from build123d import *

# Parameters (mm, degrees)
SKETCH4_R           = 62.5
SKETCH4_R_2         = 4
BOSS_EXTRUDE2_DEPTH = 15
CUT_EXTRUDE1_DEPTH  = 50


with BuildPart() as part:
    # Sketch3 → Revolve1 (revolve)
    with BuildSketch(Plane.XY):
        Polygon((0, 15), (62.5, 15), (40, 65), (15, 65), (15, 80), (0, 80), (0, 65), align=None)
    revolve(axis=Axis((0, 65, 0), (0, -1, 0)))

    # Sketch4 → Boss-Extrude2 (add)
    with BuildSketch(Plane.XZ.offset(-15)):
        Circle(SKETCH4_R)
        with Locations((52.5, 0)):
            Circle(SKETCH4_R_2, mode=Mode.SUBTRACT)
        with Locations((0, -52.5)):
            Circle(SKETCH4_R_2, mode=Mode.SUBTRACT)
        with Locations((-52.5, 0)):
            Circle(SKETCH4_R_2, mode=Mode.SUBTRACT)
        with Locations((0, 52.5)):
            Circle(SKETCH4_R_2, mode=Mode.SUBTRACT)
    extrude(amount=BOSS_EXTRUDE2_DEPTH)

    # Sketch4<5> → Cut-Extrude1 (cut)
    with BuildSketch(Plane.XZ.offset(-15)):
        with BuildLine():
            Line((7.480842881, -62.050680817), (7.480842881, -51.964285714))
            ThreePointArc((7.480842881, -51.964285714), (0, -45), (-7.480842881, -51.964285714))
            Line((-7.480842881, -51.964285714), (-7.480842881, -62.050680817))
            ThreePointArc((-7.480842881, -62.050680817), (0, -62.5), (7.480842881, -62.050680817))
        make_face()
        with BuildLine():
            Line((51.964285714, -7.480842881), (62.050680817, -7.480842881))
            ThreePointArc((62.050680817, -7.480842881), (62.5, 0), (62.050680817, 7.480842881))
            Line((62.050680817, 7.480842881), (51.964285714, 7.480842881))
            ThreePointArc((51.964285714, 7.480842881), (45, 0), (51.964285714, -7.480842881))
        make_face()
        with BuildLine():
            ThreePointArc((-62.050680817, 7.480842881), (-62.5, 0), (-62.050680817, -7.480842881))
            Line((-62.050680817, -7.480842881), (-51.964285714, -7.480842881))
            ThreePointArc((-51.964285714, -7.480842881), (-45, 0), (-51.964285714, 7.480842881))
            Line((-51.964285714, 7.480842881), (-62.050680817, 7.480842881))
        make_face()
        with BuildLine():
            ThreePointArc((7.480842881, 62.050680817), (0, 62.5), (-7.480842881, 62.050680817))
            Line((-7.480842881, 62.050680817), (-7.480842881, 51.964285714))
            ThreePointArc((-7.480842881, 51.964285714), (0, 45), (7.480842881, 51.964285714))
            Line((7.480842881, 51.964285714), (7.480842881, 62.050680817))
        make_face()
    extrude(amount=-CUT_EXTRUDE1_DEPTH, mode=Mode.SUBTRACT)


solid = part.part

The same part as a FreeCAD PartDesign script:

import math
import FreeCAD as App
import Part
import Sketcher
Q = App.Units.Quantity

doc = App.newDocument("Part")
body = doc.addObject("PartDesign::Body", "Body")

# Sketch on XY plane
sketch1 = doc.addObject("Sketcher::SketchObject", "Sketch")
body.addObject(sketch1)
sketch1.AttachmentSupport = (doc.XY_Plane, [""])
sketch1.MapMode = "FlatFace"
sketch1.addGeometry(Part.LineSegment(App.Vector(0, 15, 0), App.Vector(62, 15, 0)), False)
sketch1.addGeometry(Part.LineSegment(App.Vector(62, 15, 0), App.Vector(40, 65, 0)), False)
sketch1.addGeometry(Part.LineSegment(App.Vector(40, 65, 0), App.Vector(15, 65, 0)), False)
sketch1.addGeometry(Part.LineSegment(App.Vector(15, 65, 0), App.Vector(15, 80, 0)), False)
sketch1.addGeometry(Part.LineSegment(App.Vector(15, 80, 0), App.Vector(0, 80, 0)), False)
sketch1.addGeometry(Part.LineSegment(App.Vector(0, 80, 0), App.Vector(0, 15, 0)), False)
sketch1.addConstraint(Sketcher.Constraint("Coincident", 0, 2, 1, 1))
sketch1.addConstraint(Sketcher.Constraint("Coincident", 1, 2, 2, 1))
sketch1.addConstraint(Sketcher.Constraint("Coincident", 2, 2, 3, 1))
sketch1.addConstraint(Sketcher.Constraint("Coincident", 3, 2, 4, 1))
sketch1.addConstraint(Sketcher.Constraint("Coincident", 4, 2, 5, 1))
sketch1.addConstraint(Sketcher.Constraint("Coincident", 5, 2, 0, 1))
sketch1.addConstraint(Sketcher.Constraint("Horizontal", 0))
sketch1.addConstraint(Sketcher.Constraint("Horizontal", 2))
sketch1.addConstraint(Sketcher.Constraint("Vertical", 3))
sketch1.addConstraint(Sketcher.Constraint("Horizontal", 4))
sketch1.addConstraint(Sketcher.Constraint("Vertical", 5))
sketch1.addConstraint(Sketcher.Constraint("PointOnObject", 4, 2, -2))
sketch1.addConstraint(Sketcher.Constraint("Equal", 4, 3))
sketch1.addConstraint(Sketcher.Constraint("DistanceX", 2, 2, 2, 1, Q("25 mm")))
sketch1.addConstraint(Sketcher.Constraint("DistanceX", 4, 2, 4, 1, Q("15 mm")))
sketch1.addConstraint(Sketcher.Constraint("DistanceY", 5, 2, 5, 1, Q("65 mm")))
sketch1.addConstraint(Sketcher.Constraint("DistanceX", 0, 1, 0, 2, Q("62.5 mm")))
sketch1.addConstraint(Sketcher.Constraint("DistanceY", -1, 1, 0, 2, Q("15 mm")))
revolution = doc.addObject("PartDesign::Revolution", "Revolution")
body.addObject(revolution)
revolution.Profile = sketch1
revolution.ReferenceAxis = (sketch1, ["V_Axis"])
revolution.Angle = 360

# Sketch on XZ plane
sketch2 = doc.addObject("Sketcher::SketchObject", "Sketch001")
body.addObject(sketch2)
sketch2.AttachmentSupport = (doc.XZ_Plane, [""])
sketch2.MapMode = "FlatFace"
sketch2.AttachmentOffset = App.Placement(App.Vector(0, 0, -15), App.Rotation())
sketch2.addGeometry(Part.Circle(App.Vector(0, 0, 0), App.Vector(0, 0, 1), 62.5), False)
sketch2.addGeometry(Part.Circle(App.Vector(0, -52.5, 0), App.Vector(0, 0, 1), 4), False)
sketch2.addGeometry(Part.Circle(App.Vector(-52.5, 0, 0), App.Vector(0, 0, 1), 4), False)
sketch2.addGeometry(Part.Circle(App.Vector(52.5, 0, 0), App.Vector(0, 0, 1), 4), False)
sketch2.addGeometry(Part.Circle(App.Vector(0, 52.5, 0), App.Vector(0, 0, 1), 4), False)
sketch2.addConstraint(Sketcher.Constraint("Coincident", 0, 3, -1, 1))
sketch2.addConstraint(Sketcher.Constraint("Equal", 1, 2))
sketch2.addConstraint(Sketcher.Constraint("Equal", 2, 3))
sketch2.addConstraint(Sketcher.Constraint("Equal", 3, 4))
sketch2.addConstraint(Sketcher.Constraint("Symmetric", 2, 3, 3, 3, -1, 1))
sketch2.addConstraint(Sketcher.Constraint("Symmetric", 1, 3, 4, 3, -1, 1))
sketch2.addConstraint(Sketcher.Constraint("PointOnObject", 1, 3, -2))
sketch2.addConstraint(Sketcher.Constraint("PointOnObject", 2, 3, -1))
sketch2.addConstraint(Sketcher.Constraint("Diameter", 0, Q("125 mm")))
sketch2.addConstraint(Sketcher.Constraint("Diameter", 1, Q("8 mm")))
sketch2.addConstraint(Sketcher.Constraint("DistanceX", 2, 3, 3, 3, Q("105 mm")))
sketch2.addConstraint(Sketcher.Constraint("DistanceY", 1, 3, 4, 3, Q("105 mm")))
pad1 = doc.addObject("PartDesign::Pad", "Pad")
body.addObject(pad1)
pad1.Profile = sketch2
pad1.Length = 15

# Sketch on XZ plane
sketch3 = doc.addObject("Sketcher::SketchObject", "Sketch002")
body.addObject(sketch3)
sketch3.AttachmentSupport = (doc.XZ_Plane, [""])
sketch3.MapMode = "FlatFace"
sketch3.AttachmentOffset = App.Placement(App.Vector(0, 0, -15), App.Rotation())
sketch3.addGeometry(Part.LineSegment(App.Vector(7, -62, 0), App.Vector(7, -52, 0)), False)
sketch3.addGeometry(Part.ArcOfCircle(Part.Circle(App.Vector(0, -52, 0), App.Vector(0, 0, 1), 8), math.radians(4), math.radians(176)), False)
sketch3.addGeometry(Part.LineSegment(App.Vector(-7, -52, 0), App.Vector(-7, -62, 0)), False)
sketch3.addGeometry(Part.ArcOfCircle(Part.Circle(App.Vector(0, 0, 0), App.Vector(0, 0, 1), 63), math.radians(-96.87), math.radians(-83.13)), False)
sketch3.addGeometry(Part.LineSegment(App.Vector(52, -7, 0), App.Vector(62, -7, 0)), False)
sketch3.addGeometry(Part.ArcOfCircle(Part.Circle(App.Vector(0, 0, 0), App.Vector(0, 0, 1), 63), math.radians(-6.87), math.radians(6.87)), False)
sketch3.addGeometry(Part.LineSegment(App.Vector(62, 7, 0), App.Vector(52, 7, 0)), False)
sketch3.addGeometry(Part.ArcOfCircle(Part.Circle(App.Vector(52, 0, 0), App.Vector(0, 0, 1), 8), math.radians(94), math.radians(266)), False)
sketch3.addGeometry(Part.ArcOfCircle(Part.Circle(App.Vector(0, 0, 0), App.Vector(0, 0, 1), 63), math.radians(173.13), math.radians(186.87)), False)
sketch3.addGeometry(Part.LineSegment(App.Vector(-62, -7, 0), App.Vector(-52, -7, 0)), False)
sketch3.addGeometry(Part.ArcOfCircle(Part.Circle(App.Vector(-52, 0, 0), App.Vector(0, 0, 1), 8), math.radians(-86), math.radians(86)), False)
sketch3.addGeometry(Part.LineSegment(App.Vector(-52, 7, 0), App.Vector(-62, 7, 0)), False)
sketch3.addGeometry(Part.ArcOfCircle(Part.Circle(App.Vector(0, 0, 0), App.Vector(0, 0, 1), 63), math.radians(83.13), math.radians(96.87)), False)
sketch3.addGeometry(Part.LineSegment(App.Vector(-7, 62, 0), App.Vector(-7, 52, 0)), False)
sketch3.addGeometry(Part.ArcOfCircle(Part.Circle(App.Vector(0, 52, 0), App.Vector(0, 0, 1), 8), math.radians(-176), math.radians(-4)), False)
sketch3.addGeometry(Part.LineSegment(App.Vector(7, 52, 0), App.Vector(7, 62, 0)), False)
sketch3.addConstraint(Sketcher.Constraint("Coincident", 0, 2, 1, 1))
sketch3.addConstraint(Sketcher.Constraint("Coincident", 1, 2, 2, 1))
sketch3.addConstraint(Sketcher.Constraint("Coincident", 2, 2, 3, 1))
sketch3.addConstraint(Sketcher.Constraint("Coincident", 3, 2, 0, 1))
sketch3.addConstraint(Sketcher.Constraint("Coincident", 4, 2, 5, 1))
sketch3.addConstraint(Sketcher.Constraint("Coincident", 5, 2, 6, 1))
sketch3.addConstraint(Sketcher.Constraint("Coincident", 6, 2, 7, 1))
sketch3.addConstraint(Sketcher.Constraint("Coincident", 7, 2, 4, 1))
sketch3.addConstraint(Sketcher.Constraint("Coincident", 8, 2, 9, 1))
sketch3.addConstraint(Sketcher.Constraint("Coincident", 9, 2, 10, 1))
sketch3.addConstraint(Sketcher.Constraint("Coincident", 10, 2, 11, 1))
sketch3.addConstraint(Sketcher.Constraint("Coincident", 11, 2, 8, 1))
sketch3.addConstraint(Sketcher.Constraint("Coincident", 12, 2, 13, 1))
sketch3.addConstraint(Sketcher.Constraint("Coincident", 13, 2, 14, 1))
sketch3.addConstraint(Sketcher.Constraint("Coincident", 14, 2, 15, 1))
sketch3.addConstraint(Sketcher.Constraint("Coincident", 15, 2, 12, 1))
sketch3.addConstraint(Sketcher.Constraint("Vertical", 0))
sketch3.addConstraint(Sketcher.Constraint("Vertical", 2))
sketch3.addConstraint(Sketcher.Constraint("Horizontal", 4))
sketch3.addConstraint(Sketcher.Constraint("Horizontal", 6))
sketch3.addConstraint(Sketcher.Constraint("Horizontal", 9))
sketch3.addConstraint(Sketcher.Constraint("Horizontal", 11))
sketch3.addConstraint(Sketcher.Constraint("Vertical", 13))
sketch3.addConstraint(Sketcher.Constraint("Vertical", 15))
sketch3.addConstraint(Sketcher.Constraint("Coincident", 3, 3, -1, 1))
sketch3.addConstraint(Sketcher.Constraint("Coincident", 5, 3, -1, 1))
sketch3.addConstraint(Sketcher.Constraint("Coincident", 8, 3, -1, 1))
sketch3.addConstraint(Sketcher.Constraint("Coincident", 12, 3, -1, 1))
sketch3.addConstraint(Sketcher.Constraint("Equal", 3, 5))
sketch3.addConstraint(Sketcher.Constraint("Equal", 1, 7))
sketch3.addConstraint(Sketcher.Constraint("Equal", 5, 8))
sketch3.addConstraint(Sketcher.Constraint("Equal", 7, 10))
sketch3.addConstraint(Sketcher.Constraint("Equal", 8, 12))
sketch3.addConstraint(Sketcher.Constraint("Equal", 10, 14))
sketch3.addConstraint(Sketcher.Constraint("Symmetric", 7, 3, 10, 3, -1, 1))
sketch3.addConstraint(Sketcher.Constraint("Symmetric", 1, 3, 14, 3, -1, 1))
sketch3.addConstraint(Sketcher.Constraint("Symmetric", 0, 2, 1, 2, -2))
sketch3.addConstraint(Sketcher.Constraint("Symmetric", 7, 2, 9, 2, -2))
sketch3.addConstraint(Sketcher.Constraint("Horizontal", 6, 2, 10, 2))
sketch3.addConstraint(Sketcher.Constraint("Horizontal", 13, 2, 14, 2))
sketch3.addConstraint(Sketcher.Constraint("Vertical", 6, 2, 7, 2))
sketch3.addConstraint(Sketcher.Constraint("Equal", 11, 0))
sketch3.addConstraint(Sketcher.Constraint("Equal", 2, 13))
sketch3.addConstraint(Sketcher.Constraint("Radius", 1, Q("7.5 mm")))
sketch3.addConstraint(Sketcher.Constraint("Radius", 3, Q("62.5 mm")))
sketch3.addConstraint(Sketcher.Constraint("DistanceX", 10, 3, 7, 3, Q("105 mm")))
sketch3.addConstraint(Sketcher.Constraint("DistanceY", 1, 3, -1, 1, Q("52.5 mm")))
sketch3.addConstraint(Sketcher.Constraint("DistanceX", 4, 1, 4, 2, Q("10.086395 mm")))
pocket1 = doc.addObject("PartDesign::Pocket", "Pocket")
body.addObject(pocket1)
pocket1.Profile = sketch3
pocket1.Length = 50

doc.recompute()
